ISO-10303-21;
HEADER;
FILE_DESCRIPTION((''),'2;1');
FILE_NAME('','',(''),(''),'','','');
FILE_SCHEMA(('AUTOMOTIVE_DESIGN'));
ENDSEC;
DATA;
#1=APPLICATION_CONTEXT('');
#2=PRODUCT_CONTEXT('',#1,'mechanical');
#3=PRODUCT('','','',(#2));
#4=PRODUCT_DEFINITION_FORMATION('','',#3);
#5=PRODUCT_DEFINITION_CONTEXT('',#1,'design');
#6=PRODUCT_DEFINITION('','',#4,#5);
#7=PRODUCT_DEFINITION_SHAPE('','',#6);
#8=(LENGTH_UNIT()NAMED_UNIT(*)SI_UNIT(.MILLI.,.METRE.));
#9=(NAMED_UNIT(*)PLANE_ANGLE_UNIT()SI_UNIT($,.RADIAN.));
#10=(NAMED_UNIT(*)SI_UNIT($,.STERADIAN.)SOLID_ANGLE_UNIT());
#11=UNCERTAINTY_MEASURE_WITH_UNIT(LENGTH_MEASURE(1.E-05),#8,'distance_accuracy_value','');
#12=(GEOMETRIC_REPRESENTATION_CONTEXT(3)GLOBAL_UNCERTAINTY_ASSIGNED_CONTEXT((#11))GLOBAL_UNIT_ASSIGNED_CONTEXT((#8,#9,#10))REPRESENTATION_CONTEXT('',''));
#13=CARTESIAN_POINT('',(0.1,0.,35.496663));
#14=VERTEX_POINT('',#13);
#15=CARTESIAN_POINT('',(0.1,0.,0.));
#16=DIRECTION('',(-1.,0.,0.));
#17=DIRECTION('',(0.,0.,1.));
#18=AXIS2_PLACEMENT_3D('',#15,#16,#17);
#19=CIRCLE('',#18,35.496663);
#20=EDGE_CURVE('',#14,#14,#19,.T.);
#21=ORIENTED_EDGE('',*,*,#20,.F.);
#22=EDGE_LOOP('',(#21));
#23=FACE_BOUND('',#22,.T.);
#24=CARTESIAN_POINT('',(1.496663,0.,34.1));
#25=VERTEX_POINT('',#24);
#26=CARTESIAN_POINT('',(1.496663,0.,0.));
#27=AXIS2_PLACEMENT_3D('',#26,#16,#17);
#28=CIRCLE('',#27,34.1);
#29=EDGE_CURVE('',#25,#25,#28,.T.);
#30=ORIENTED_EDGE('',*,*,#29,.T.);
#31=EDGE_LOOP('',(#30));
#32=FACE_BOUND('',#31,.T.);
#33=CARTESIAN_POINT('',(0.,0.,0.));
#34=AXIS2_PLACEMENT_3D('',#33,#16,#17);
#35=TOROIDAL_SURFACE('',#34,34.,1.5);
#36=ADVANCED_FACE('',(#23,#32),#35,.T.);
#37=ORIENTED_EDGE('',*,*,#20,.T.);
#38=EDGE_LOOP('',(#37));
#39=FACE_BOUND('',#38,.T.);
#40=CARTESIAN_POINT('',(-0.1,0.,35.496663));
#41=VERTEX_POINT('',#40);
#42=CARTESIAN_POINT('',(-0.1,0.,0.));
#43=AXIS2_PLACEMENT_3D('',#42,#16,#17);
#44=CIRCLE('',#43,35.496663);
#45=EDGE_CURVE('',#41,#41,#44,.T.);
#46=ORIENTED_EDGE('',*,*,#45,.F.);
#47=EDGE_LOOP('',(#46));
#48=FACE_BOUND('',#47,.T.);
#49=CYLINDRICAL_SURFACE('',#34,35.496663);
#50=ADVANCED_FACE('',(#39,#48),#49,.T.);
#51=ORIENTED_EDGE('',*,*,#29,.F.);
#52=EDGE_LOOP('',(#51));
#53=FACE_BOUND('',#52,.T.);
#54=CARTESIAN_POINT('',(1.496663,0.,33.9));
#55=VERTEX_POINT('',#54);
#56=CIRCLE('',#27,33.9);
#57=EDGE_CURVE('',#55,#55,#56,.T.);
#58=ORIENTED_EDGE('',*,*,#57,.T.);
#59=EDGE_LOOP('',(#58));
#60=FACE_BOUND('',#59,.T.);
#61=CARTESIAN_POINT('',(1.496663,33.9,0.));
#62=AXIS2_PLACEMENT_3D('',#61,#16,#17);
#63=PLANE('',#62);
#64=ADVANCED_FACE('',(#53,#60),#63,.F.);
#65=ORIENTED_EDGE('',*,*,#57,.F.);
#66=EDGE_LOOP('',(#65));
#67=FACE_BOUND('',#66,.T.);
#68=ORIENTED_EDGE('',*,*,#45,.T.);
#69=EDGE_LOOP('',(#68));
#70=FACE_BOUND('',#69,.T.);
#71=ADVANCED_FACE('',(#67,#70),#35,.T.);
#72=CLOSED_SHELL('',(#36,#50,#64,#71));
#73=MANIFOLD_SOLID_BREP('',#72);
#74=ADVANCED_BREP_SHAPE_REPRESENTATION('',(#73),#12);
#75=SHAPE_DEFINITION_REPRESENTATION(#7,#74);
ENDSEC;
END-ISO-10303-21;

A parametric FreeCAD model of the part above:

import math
import FreeCAD as App
import Part
import Sketcher

doc = App.newDocument("Part")
body = doc.addObject("PartDesign::Body", "Body")

# Sketch on XY plane
sketch1 = body.newObject("Sketcher::SketchObject", "Sketch")
sketch1.AttachmentSupport = (doc.getObject("XY_Plane"), [""])
sketch1.MapMode = "FlatFace"
sketch1.addGeometry(Part.LineSegment(App.Vector(0.1, 35.5, 0), App.Vector(-0.1, 35.5, 0)), False)
sketch1.addGeometry(Part.ArcOfCircle(Part.Circle(App.Vector(0, 34, 0), App.Vector(0, 0, 1), 1.5), math.radians(94), math.radians(356)), False)
sketch1.addGeometry(Part.LineSegment(App.Vector(1.5, 33.9, 0), App.Vector(1.5, 34.1, 0)), False)
sketch1.addGeometry(Part.ArcOfCircle(Part.Circle(App.Vector(0, 34, 0), App.Vector(0, 0, 1), 1.5), math.radians(4), math.radians(86)), False)
sketch1.addConstraint(Sketcher.Constraint("Coincident", 0, 2, 1, 1))
sketch1.addConstraint(Sketcher.Constraint("Coincident", 1, 2, 2, 1))
sketch1.addConstraint(Sketcher.Constraint("Coincident", 2, 2, 3, 1))
sketch1.addConstraint(Sketcher.Constraint("Coincident", 3, 2, 0, 1))
sketch1.addConstraint(Sketcher.Constraint("Horizontal", 0))
sketch1.addConstraint(Sketcher.Constraint("Vertical", 2))
sketch1.addConstraint(Sketcher.Constraint("Coincident", 3, 3, 1, 3))
sketch1.addConstraint(Sketcher.Constraint("Equal", 1, 3))
sketch1.addConstraint(Sketcher.Constraint("PointOnObject", 1, 3, -2))
sketch1.addConstraint(Sketcher.Constraint("Equal", 0, 2))
sketch1.addConstraint(Sketcher.Constraint("Radius", 1, 1.5))
sketch1.addConstraint(Sketcher.Constraint("DistanceX", 0, 2, 0, 1, 0.2))
sketch1.addConstraint(Sketcher.Constraint("DistanceY", -1, 1, 1, 3, 34.0))
revolution = body.newObject("PartDesign::Revolution", "Revolution")
revolution.Profile = sketch1
revolution.ReferenceAxis = (sketch1, ["H_Axis"])
revolution.Angle = 360

doc.recompute()
